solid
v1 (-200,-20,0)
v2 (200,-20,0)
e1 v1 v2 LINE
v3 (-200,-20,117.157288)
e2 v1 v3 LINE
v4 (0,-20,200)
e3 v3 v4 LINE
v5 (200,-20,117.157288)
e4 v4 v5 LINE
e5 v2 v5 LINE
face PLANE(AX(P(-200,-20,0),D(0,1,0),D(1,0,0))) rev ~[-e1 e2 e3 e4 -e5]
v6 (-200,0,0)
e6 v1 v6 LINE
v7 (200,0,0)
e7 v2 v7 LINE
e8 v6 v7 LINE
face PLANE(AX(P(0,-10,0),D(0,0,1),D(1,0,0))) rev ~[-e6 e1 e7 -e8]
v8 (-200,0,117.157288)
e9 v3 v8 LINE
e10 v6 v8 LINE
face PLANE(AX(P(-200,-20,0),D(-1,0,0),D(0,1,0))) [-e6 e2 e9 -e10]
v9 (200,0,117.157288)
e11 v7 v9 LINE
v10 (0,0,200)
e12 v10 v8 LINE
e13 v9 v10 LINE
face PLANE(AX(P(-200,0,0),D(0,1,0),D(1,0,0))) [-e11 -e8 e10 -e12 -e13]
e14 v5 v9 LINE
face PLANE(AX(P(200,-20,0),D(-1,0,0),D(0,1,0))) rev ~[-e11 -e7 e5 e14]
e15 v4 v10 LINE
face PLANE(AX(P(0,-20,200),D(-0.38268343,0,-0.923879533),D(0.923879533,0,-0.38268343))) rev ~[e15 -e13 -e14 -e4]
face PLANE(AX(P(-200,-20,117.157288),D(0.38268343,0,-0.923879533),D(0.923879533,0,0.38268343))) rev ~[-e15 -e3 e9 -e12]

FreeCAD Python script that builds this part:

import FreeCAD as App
import Part
import Sketcher
Q = App.Units.Quantity


def add_polygon(sketch, points):
    """Adds a closed chain of lines whose ends are joined by coincident constraints."""
    first, n = sketch.GeometryCount, len(points)
    for a, b in zip(points, points[1:] + points[:1]):
        sketch.addGeometry(Part.LineSegment(App.Vector(*a, 0), App.Vector(*b, 0)), False)
    for i in range(n):
        sketch.addConstraint(Sketcher.Constraint("Coincident", first + i, 2, first + (i + 1) % n, 1))

doc = App.newDocument("Part")
body = doc.addObject("PartDesign::Body", "Body")

sketch1 = body.newObject("Sketcher::SketchObject", "Sketch")
sketch1.AttachmentSupport = (doc.getObject("XY_Plane"), [""])
sketch1.MapMode = "FlatFace"
add_polygon(sketch1, [(-200, 0), (-200, -20), (200, -20), (200, 0)])
sketch1.addConstraint([
    Sketcher.Constraint("Vertical", 0),
    Sketcher.Constraint("Horizontal", 1),
    Sketcher.Constraint("Vertical", 2),
    Sketcher.Constraint("Horizontal", 3),
    Sketcher.Constraint("Symmetric", 2, 2, 3, 2, -1, 1),
    Sketcher.Constraint("DistanceX", 1, 1, 1, 2, Q("400 mm")),
    Sketcher.Constraint("DistanceY", 0, 2, 0, 1, Q("20 mm")),
])
pad1 = body.newObject("PartDesign::Pad", "Pad")
pad1.Profile = sketch1
pad1.Length = 200

sketch2 = body.newObject("Sketcher::SketchObject", "Sketch001")
sketch2.AttachmentSupport = (doc.getObject("XZ_Plane"), [""])
sketch2.MapMode = "FlatFace"
sketch2.AttachmentOffset = App.Placement(App.Vector(0, 0, 20), App.Rotation())
add_polygon(sketch2, [(-200, 117), (0, 200), (-200, 200)])
sketch2.addConstraint([
    Sketcher.Constraint("Horizontal", 1),
    Sketcher.Constraint("Vertical", 2),
    Sketcher.Constraint("PointOnObject", 0, 2, -2),
    Sketcher.Constraint("DistanceX", 1, 2, 1, 1, Q("200 mm")),
    Sketcher.Constraint("DistanceY", -1, 1, 0, 2, Q("200 mm")),
    Sketcher.Constraint("Angle", 0, Q("22.5 deg")),
])
pocket1 = body.newObject("PartDesign::Pocket", "Pocket")
pocket1.Profile = sketch2
pocket1.Type = "ThroughAll"

sketch3 = body.newObject("Sketcher::SketchObject", "Sketch002")
sketch3.AttachmentSupport = (doc.getObject("XZ_Plane"), [""])
sketch3.MapMode = "FlatFace"
sketch3.AttachmentOffset = App.Placement(App.Vector(0, 0, 20), App.Rotation())
add_polygon(sketch3, [(200, 200), (0, 200), (200, 117)])
sketch3.addConstraint([
    Sketcher.Constraint("Horizontal", 0),
    Sketcher.Constraint("Vertical", 2),
    Sketcher.Constraint("PointOnObject", 0, 2, -2),
    Sketcher.Constraint("DistanceX", 0, 2, 0, 1, Q("200 mm")),
    Sketcher.Constraint("DistanceY", -1, 1, 0, 2, Q("200 mm")),
    Sketcher.Constraint("Angle", 1, Q("-22.5 deg")),
])
pocket2 = body.newObject("PartDesign::Pocket", "Pocket001")
pocket2.Profile = sketch3
pocket2.Type = "ThroughAll"

doc.recompute()
